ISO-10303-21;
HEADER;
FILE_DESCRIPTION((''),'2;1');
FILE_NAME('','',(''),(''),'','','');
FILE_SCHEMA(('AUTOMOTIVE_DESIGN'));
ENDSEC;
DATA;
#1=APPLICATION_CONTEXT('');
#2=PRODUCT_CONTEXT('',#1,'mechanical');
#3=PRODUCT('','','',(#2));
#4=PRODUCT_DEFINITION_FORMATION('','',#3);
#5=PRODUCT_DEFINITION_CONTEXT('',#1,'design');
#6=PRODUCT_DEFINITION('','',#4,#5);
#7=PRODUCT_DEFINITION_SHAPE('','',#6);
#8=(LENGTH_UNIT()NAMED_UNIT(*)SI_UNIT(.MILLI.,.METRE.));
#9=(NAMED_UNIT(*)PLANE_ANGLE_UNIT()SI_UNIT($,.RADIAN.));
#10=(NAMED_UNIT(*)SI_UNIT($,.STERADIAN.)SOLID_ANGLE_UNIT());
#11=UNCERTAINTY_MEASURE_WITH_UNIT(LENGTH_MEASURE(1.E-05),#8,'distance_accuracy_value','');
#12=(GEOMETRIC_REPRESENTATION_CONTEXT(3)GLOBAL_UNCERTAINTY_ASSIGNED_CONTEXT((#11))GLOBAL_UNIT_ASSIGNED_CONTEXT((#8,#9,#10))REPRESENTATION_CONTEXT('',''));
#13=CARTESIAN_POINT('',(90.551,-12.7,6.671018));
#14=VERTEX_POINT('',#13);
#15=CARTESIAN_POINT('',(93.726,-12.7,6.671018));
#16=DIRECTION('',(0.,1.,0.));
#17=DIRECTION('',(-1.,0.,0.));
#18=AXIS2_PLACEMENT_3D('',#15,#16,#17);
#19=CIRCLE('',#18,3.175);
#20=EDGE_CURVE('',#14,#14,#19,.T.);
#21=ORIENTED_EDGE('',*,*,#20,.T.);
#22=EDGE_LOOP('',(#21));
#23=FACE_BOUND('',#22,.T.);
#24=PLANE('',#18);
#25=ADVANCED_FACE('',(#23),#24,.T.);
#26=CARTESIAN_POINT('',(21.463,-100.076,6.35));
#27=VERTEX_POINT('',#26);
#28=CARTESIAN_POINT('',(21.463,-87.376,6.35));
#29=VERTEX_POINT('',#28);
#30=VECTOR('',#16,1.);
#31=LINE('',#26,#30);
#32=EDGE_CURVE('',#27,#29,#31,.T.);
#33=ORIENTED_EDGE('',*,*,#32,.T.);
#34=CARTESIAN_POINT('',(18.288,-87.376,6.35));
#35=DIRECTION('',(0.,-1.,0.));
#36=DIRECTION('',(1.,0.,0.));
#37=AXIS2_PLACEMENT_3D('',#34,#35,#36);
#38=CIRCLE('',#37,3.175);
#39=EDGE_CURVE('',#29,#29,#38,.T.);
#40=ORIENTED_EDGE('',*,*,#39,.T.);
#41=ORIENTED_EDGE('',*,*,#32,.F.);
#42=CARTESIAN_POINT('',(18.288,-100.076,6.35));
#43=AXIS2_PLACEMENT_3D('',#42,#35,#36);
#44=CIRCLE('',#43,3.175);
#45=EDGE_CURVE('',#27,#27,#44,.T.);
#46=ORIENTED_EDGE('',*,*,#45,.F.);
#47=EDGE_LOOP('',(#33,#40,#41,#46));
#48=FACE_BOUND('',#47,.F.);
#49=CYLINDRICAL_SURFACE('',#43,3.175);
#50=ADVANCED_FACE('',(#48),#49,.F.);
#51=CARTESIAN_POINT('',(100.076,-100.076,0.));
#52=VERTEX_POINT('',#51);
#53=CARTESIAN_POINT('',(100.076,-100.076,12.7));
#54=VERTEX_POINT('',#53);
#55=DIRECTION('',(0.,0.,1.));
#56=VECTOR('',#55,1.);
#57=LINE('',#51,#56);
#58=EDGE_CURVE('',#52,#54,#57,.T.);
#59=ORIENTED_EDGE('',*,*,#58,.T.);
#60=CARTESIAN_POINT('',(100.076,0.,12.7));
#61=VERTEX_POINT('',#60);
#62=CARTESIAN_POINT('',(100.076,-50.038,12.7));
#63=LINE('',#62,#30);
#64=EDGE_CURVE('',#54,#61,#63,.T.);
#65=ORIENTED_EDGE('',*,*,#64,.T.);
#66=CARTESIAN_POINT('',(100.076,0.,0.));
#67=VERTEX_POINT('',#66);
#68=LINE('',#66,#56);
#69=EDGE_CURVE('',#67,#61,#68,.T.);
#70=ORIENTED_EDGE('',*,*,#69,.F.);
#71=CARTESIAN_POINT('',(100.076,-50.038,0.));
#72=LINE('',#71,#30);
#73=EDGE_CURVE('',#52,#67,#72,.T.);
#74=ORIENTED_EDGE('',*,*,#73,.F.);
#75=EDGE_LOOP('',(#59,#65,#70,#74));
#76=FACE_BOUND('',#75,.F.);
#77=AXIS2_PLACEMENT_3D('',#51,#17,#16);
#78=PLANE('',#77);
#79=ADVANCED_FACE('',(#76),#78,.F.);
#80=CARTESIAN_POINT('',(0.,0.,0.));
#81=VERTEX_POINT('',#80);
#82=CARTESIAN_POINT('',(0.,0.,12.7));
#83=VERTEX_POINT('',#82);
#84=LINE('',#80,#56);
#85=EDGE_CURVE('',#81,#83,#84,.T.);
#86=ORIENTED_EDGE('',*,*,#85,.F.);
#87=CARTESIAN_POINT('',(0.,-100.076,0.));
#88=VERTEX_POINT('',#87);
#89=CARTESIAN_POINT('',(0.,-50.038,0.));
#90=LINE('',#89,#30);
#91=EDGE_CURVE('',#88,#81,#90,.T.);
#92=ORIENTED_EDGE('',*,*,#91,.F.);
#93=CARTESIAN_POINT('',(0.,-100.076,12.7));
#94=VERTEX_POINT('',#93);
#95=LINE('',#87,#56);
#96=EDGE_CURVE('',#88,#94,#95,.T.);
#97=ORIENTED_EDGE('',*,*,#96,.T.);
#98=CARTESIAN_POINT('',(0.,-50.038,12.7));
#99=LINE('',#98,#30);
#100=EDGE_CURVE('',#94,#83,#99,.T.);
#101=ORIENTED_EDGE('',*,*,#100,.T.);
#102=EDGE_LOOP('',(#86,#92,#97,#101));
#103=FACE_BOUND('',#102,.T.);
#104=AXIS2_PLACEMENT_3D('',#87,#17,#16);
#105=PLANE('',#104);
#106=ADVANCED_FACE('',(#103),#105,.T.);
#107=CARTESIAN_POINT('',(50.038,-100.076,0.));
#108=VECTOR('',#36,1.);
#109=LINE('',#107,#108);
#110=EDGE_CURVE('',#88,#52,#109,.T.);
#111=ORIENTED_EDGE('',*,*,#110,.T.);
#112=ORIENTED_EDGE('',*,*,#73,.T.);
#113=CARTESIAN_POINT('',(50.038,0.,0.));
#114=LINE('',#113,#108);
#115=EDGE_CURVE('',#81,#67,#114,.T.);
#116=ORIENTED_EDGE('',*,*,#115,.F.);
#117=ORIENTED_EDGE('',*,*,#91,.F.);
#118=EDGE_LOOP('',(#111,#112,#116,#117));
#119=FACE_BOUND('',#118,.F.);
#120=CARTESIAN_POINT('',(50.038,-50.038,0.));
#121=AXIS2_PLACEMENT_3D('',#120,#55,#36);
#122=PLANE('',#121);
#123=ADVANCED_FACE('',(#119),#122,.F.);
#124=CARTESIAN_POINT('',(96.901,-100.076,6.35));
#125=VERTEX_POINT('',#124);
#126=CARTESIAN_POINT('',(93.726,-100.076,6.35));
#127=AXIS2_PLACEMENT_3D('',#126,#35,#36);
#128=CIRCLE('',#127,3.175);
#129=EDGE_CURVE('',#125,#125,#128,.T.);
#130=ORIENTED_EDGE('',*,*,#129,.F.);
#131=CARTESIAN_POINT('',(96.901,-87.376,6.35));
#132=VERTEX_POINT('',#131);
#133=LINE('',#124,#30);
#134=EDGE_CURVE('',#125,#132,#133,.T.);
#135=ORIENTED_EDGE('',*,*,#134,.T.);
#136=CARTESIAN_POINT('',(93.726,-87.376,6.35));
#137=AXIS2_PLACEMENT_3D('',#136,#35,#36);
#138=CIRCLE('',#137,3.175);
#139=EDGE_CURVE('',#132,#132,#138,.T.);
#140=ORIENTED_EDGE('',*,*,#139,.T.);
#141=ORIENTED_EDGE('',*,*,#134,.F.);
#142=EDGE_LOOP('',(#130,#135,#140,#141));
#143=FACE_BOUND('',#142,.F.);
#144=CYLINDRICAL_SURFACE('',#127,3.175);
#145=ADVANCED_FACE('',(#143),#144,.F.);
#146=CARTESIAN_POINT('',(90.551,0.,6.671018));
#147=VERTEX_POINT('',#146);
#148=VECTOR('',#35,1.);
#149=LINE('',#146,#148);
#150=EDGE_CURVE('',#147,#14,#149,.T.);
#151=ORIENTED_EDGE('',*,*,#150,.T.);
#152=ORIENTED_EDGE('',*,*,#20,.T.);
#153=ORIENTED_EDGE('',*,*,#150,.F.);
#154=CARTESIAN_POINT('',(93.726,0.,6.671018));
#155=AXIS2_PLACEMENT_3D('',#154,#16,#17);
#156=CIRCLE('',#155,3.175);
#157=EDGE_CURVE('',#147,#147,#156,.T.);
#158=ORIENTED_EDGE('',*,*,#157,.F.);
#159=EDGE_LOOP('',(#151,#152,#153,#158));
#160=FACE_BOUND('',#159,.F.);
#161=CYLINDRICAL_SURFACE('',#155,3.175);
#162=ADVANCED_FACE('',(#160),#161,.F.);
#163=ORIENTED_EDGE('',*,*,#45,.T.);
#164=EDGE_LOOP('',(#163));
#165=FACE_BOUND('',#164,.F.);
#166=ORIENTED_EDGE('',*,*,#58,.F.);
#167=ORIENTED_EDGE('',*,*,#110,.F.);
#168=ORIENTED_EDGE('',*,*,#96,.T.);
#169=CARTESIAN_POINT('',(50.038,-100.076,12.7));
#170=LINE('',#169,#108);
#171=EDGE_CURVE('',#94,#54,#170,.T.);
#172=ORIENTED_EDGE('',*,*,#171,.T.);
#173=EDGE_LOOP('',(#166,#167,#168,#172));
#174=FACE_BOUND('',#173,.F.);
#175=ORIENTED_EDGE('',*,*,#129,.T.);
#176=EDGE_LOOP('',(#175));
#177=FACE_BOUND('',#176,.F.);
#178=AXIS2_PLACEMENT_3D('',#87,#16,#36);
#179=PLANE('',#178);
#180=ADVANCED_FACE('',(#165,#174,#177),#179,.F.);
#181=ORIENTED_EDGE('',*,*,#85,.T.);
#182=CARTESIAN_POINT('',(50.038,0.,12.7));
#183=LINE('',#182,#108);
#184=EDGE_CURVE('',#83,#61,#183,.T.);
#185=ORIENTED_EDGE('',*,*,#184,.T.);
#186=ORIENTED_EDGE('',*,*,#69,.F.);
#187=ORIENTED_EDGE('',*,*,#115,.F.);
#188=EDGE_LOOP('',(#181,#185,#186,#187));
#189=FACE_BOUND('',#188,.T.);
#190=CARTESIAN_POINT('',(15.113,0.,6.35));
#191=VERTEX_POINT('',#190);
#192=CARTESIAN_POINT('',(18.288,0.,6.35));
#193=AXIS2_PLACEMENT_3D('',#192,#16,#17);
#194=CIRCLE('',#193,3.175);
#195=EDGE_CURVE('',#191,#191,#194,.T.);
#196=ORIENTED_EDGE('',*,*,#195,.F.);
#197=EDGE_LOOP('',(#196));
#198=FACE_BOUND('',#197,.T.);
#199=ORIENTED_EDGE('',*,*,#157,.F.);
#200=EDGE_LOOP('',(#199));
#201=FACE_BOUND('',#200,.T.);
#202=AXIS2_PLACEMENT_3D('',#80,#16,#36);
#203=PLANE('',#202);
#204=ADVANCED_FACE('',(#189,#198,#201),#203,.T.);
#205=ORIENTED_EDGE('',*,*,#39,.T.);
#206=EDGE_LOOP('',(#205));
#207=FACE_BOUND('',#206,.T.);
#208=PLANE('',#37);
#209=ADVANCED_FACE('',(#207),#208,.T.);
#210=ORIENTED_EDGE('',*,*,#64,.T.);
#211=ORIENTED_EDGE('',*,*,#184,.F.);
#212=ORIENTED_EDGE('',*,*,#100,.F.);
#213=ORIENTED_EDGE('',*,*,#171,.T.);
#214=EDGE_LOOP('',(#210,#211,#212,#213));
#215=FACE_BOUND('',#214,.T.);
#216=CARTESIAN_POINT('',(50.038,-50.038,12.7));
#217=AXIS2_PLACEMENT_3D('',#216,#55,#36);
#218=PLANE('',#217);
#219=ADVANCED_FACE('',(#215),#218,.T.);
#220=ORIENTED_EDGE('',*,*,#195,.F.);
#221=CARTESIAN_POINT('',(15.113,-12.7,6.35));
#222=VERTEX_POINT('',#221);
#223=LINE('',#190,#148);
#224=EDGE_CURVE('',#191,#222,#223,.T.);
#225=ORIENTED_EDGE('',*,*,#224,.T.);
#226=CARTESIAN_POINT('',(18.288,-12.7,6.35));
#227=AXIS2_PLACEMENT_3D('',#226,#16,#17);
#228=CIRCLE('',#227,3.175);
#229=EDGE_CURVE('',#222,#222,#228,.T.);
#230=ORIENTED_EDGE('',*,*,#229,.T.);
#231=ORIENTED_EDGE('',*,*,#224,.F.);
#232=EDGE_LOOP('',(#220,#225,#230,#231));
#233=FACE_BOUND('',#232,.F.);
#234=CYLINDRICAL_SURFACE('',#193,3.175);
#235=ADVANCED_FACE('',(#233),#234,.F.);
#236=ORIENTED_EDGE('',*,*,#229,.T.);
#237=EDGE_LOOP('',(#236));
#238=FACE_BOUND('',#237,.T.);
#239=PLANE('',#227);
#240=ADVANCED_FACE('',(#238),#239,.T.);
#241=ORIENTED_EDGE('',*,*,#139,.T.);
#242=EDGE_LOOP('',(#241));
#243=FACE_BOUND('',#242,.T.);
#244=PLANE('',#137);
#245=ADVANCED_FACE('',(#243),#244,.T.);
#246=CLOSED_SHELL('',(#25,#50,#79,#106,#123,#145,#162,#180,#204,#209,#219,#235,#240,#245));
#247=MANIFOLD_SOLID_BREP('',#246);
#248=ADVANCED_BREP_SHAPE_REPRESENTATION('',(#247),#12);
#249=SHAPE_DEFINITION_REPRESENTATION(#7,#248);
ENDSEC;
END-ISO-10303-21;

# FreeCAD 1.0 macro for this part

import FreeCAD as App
import Part
import Sketcher
Q = App.Units.Quantity

doc = App.newDocument("Part")
body = doc.addObject("PartDesign::Body", "Body")

# Sketch on XY plane
sketch1 = doc.addObject("Sketcher::SketchObject", "Sketch")
body.addObject(sketch1)
sketch1.AttachmentSupport = (doc.XY_Plane, [""])
sketch1.MapMode = "FlatFace"
sketch1.addGeometry(Part.LineSegment(App.Vector(0, 0, 0), App.Vector(0, -100, 0)), False)
sketch1.addGeometry(Part.LineSegment(App.Vector(0, -100, 0), App.Vector(100, -100, 0)), False)
sketch1.addGeometry(Part.LineSegment(App.Vector(100, -100, 0), App.Vector(100, 0, 0)), False)
sketch1.addGeometry(Part.LineSegment(App.Vector(100, 0, 0), App.Vector(0, 0, 0)), False)
sketch1.addConstraint(Sketcher.Constraint("Coincident", 0, 2, 1, 1))
sketch1.addConstraint(Sketcher.Constraint("Coincident", 1, 2, 2, 1))
sketch1.addConstraint(Sketcher.Constraint("Coincident", 2, 2, 3, 1))
sketch1.addConstraint(Sketcher.Constraint("Coincident", 3, 2, 0, 1))
sketch1.addConstraint(Sketcher.Constraint("Vertical", 0))
sketch1.addConstraint(Sketcher.Constraint("Horizontal", 1))
sketch1.addConstraint(Sketcher.Constraint("Vertical", 2))
sketch1.addConstraint(Sketcher.Constraint("Horizontal", 3))
sketch1.addConstraint(Sketcher.Constraint("Coincident", 3, 2, -1, 1))
sketch1.addConstraint(Sketcher.Constraint("Equal", 3, 0))
sketch1.addConstraint(Sketcher.Constraint("DistanceX", 1, 1, 1, 2, Q("3.94 in")))
pad1 = doc.addObject("PartDesign::Pad", "Pad")
body.addObject(pad1)
pad1.Profile = sketch1
pad1.Length = Q("0.5 in")

# Sketch on XZ plane
sketch2 = doc.addObject("Sketcher::SketchObject", "Sketch001")
body.addObject(sketch2)
sketch2.AttachmentSupport = (doc.XZ_Plane, [""])
sketch2.MapMode = "FlatFace"
sketch2.AttachmentOffset = App.Placement(App.Vector(0, 0, 3.94 * 25.4), App.Rotation())
sketch2.addGeometry(Part.Circle(App.Vector(93.7, 6.3, 0), App.Vector(0, 0, 1), 3.2), False)
sketch2.addGeometry(Part.Circle(App.Vector(18.3, 6.3, 0), App.Vector(0, 0, 1), 3.2), False)
sketch2.addConstraint(Sketcher.Constraint("Equal", 0, 1))
sketch2.addConstraint(Sketcher.Constraint("Horizontal", 0, 3, 1, 3))
sketch2.addConstraint(Sketcher.Constraint("Diameter", 0, Q("0.25 in")))
sketch2.addConstraint(Sketcher.Constraint("DistanceX", -1, 1, 0, 3, Q("3.69 in")))
sketch2.addConstraint(Sketcher.Constraint("DistanceY", -1, 1, 0, 3, Q("0.25 in")))
sketch2.addConstraint(Sketcher.Constraint("DistanceX", -1, 1, 1, 3, Q("0.72 in")))
pocket1 = doc.addObject("PartDesign::Pocket", "Pocket")
body.addObject(pocket1)
pocket1.Profile = sketch2
pocket1.Length = Q("0.5 in")

# Sketch on XZ plane
sketch3 = doc.addObject("Sketcher::SketchObject", "Sketch002")
body.addObject(sketch3)
sketch3.AttachmentSupport = (doc.XZ_Plane, [""])
sketch3.MapMode = "FlatFace"
sketch3.addGeometry(Part.Circle(App.Vector(93.7, 6.7, 0), App.Vector(0, 0, 1), 3.2), False)
sketch3.addGeometry(Part.Circle(App.Vector(18.3, 6.3, 0), App.Vector(0, 0, 1), 3.2), False)
sketch3.addConstraint(Sketcher.Constraint("Equal", 0, 1))
sketch3.addConstraint(Sketcher.Constraint("Diameter", 0, Q("0.25 in")))
sketch3.addConstraint(Sketcher.Constraint("DistanceX", -1, 1, 0, 3, Q("3.69 in")))
sketch3.addConstraint(Sketcher.Constraint("DistanceX", -1, 1, 1, 3, Q("0.72 in")))
sketch3.addConstraint(Sketcher.Constraint("DistanceY", -1, 1, 1, 3, Q("0.25 in")))
sketch3.addConstraint(Sketcher.Constraint("DistanceY", 1, 3, 0, 3, Q("0.321018 mm")))
pocket2 = doc.addObject("PartDesign::Pocket", "Pocket001")
body.addObject(pocket2)
pocket2.Profile = sketch3
pocket2.Length = Q("0.5 in")
pocket2.Reversed = True

doc.recompute()
